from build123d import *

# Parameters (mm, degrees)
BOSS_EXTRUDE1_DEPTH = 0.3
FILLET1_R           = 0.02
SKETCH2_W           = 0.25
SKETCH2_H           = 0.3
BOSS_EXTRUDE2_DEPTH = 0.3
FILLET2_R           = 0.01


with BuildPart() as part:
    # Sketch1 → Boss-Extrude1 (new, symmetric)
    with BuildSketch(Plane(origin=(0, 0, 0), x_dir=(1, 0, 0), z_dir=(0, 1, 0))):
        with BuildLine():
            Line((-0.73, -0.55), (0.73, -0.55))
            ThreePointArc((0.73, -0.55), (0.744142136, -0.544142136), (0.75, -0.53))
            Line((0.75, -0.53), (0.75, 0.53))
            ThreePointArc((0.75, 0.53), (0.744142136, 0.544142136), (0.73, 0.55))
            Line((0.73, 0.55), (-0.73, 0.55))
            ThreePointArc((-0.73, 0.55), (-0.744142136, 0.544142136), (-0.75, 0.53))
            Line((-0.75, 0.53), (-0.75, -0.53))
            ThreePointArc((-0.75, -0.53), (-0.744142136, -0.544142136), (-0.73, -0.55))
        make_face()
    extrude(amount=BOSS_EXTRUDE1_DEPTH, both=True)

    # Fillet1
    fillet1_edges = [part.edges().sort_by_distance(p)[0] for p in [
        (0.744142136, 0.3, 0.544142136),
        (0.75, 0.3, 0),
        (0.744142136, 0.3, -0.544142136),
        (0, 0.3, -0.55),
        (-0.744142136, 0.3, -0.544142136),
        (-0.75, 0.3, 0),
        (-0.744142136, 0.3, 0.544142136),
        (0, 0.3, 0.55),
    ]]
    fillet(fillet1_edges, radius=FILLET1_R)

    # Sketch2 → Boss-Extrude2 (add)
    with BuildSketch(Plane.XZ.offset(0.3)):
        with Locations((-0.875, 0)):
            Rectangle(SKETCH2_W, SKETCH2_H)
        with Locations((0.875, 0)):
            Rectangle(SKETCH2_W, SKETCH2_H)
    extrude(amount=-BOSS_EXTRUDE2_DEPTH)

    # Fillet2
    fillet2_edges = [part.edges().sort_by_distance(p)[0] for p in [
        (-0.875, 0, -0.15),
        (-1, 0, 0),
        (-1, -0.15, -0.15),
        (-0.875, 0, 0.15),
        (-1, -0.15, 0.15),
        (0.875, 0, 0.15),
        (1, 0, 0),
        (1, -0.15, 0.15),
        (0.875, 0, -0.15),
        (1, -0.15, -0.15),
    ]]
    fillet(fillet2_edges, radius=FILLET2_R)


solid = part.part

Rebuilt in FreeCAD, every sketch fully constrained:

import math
import FreeCAD as App
import Part
import Sketcher

V = App.Vector
Q = App.Units.Quantity


def edges_at(feature, points):
    """Names of the edges that pass closest to the given points."""
    edges = feature.Shape.Edges
    near = lambda p: min(range(len(edges)), key=lambda i: edges[i].distToShape(Part.Vertex(*p))[0])
    return sorted({f"Edge{near(p) + 1}" for p in points})


def add_polygon(sketch, points):
    """Adds a closed chain of lines whose ends are joined by coincident constraints."""
    first, n = sketch.GeometryCount, len(points)
    for a, b in zip(points, points[1:] + points[:1]):
        sketch.addGeometry(Part.LineSegment(App.Vector(*a, 0), App.Vector(*b, 0)), False)
    for i in range(n):
        sketch.addConstraint(Sketcher.Constraint("Coincident", first + i, 2, first + (i + 1) % n, 1))

doc = App.newDocument("Part")
params = doc.addObject("Spreadsheet::Sheet", "Params")
for row, (alias, value) in enumerate([
    ("sketch1_radius", "0.02 mm"),
    ("sketch1_width", "1.46 mm"),
    ("sketch1_height", "1.06 mm"),
    ("pad1_length", "0.6 mm"),
    ("fillet_radius", "0.02 mm"),
    ("sketch2_height", "0.3 mm"),
    ("sketch2_width", "0.25 mm"),
    ("pad2_length", "0.3 mm"),
    ("fillet2_radius", "0.01 mm"),
], start=1):
    params.set(f"A{row}", alias)
    params.set(f"B{row}", "=" + value)
    params.setAlias(f"B{row}", alias)

body = doc.addObject("PartDesign::Body", "Body")

# Sketch on XZ plane
sketch1 = body.newObject("Sketcher::SketchObject", "Sketch")
sketch1.AttachmentSupport = (doc.getObject("XZ_Plane"), [""])
sketch1.MapMode = "FlatFace"
sketch1.addGeometry(Part.LineSegment(V(-0.73, 0.55, 0), V(0.73, 0.55, 0)), False)
sketch1.addGeometry(Part.ArcOfCircle(Part.Circle(V(0.73, 0.53, 0), V(0, 0, 1), 0.02), math.radians(0), math.radians(90)), False)
sketch1.addGeometry(Part.LineSegment(V(0.75, 0.53, 0), V(0.75, -0.53, 0)), False)
sketch1.addGeometry(Part.ArcOfCircle(Part.Circle(V(0.73, -0.53, 0), V(0, 0, 1), 0.02), math.radians(-90), math.radians(0)), False)
sketch1.addGeometry(Part.LineSegment(V(0.73, -0.55, 0), V(-0.73, -0.55, 0)), False)
sketch1.addGeometry(Part.ArcOfCircle(Part.Circle(V(-0.73, -0.53, 0), V(0, 0, 1), 0.02), math.radians(180), math.radians(270)), False)
sketch1.addGeometry(Part.LineSegment(V(-0.75, -0.53, 0), V(-0.75, 0.53, 0)), False)
sketch1.addGeometry(Part.ArcOfCircle(Part.Circle(V(-0.73, 0.53, 0), V(0, 0, 1), 0.02), math.radians(90), math.radians(180)), False)
sketch1.addConstraint(Sketcher.Constraint("Tangent", 0, 2, 1, 2))
sketch1.addConstraint(Sketcher.Constraint("Tangent", 1, 1, 2, 1))
sketch1.addConstraint(Sketcher.Constraint("Tangent", 2, 2, 3, 2))
sketch1.addConstraint(Sketcher.Constraint("Tangent", 3, 1, 4, 1))
sketch1.addConstraint(Sketcher.Constraint("Tangent", 4, 2, 5, 2))
sketch1.addConstraint(Sketcher.Constraint("Tangent", 5, 1, 6, 1))
sketch1.addConstraint(Sketcher.Constraint("Tangent", 6, 2, 7, 2))
sketch1.addConstraint(Sketcher.Constraint("Tangent", 7, 1, 0, 1))
sketch1.addConstraint(Sketcher.Constraint("Horizontal", 0))
sketch1.addConstraint(Sketcher.Constraint("Vertical", 2))
sketch1.addConstraint(Sketcher.Constraint("Horizontal", 4))
sketch1.addConstraint(Sketcher.Constraint("Vertical", 6))
sketch1.addConstraint(Sketcher.Constraint("Equal", 1, 3))
sketch1.addConstraint(Sketcher.Constraint("Equal", 3, 5))
sketch1.addConstraint(Sketcher.Constraint("Equal", 5, 7))
sketch1.addConstraint(Sketcher.Constraint("Symmetric", 1, 3, 5, 3, -1, 1))
sketch1.addConstraint(Sketcher.Constraint("Radius", 1, Q("0.02 mm")))
sketch1.addConstraint(Sketcher.Constraint("DistanceX", 0, 1, 0, 2, Q("1.46 mm")))
sketch1.addConstraint(Sketcher.Constraint("DistanceY", 2, 2, 2, 1, Q("1.06 mm")))
sketch1.setExpression("Constraints[16]", "Params.sketch1_radius")
sketch1.setExpression("Constraints[17]", "Params.sketch1_width")
sketch1.setExpression("Constraints[18]", "Params.sketch1_height")
pad1 = body.newObject("PartDesign::Pad", "Pad")
pad1.Profile = sketch1
pad1.setExpression("Length", "Params.pad1_length")
pad1.Midplane = True
doc.recompute()

fillet = body.newObject("PartDesign::Fillet", "Fillet")
fillet.Base = (pad1, edges_at(pad1, [
    (0.744, 0.3, 0.544),
    (0.75, 0.3, 0),
    (0.744, 0.3, -0.544),
    (0, 0.3, -0.55),
    (-0.744, 0.3, -0.544),
    (-0.75, 0.3, 0),
    (-0.744, 0.3, 0.544),
    (0, 0.3, 0.55),
]))
fillet.setExpression("Radius", "Params.fillet_radius")

# Sketch on XZ plane
sketch2 = body.newObject("Sketcher::SketchObject", "Sketch001")
sketch2.AttachmentSupport = (doc.getObject("XZ_Plane"), [""])
sketch2.MapMode = "FlatFace"
sketch2.AttachmentOffset = App.Placement(V(0, 0, 0.3), App.Rotation())
add_polygon(sketch2, [(-1, 0.15), (-1, -0.15), (-0.75, -0.15), (-0.75, 0.15)])  # lines 0-3
add_polygon(sketch2, [(0.75, 0.15), (0.75, -0.15), (1, -0.15), (1, 0.15)])  # lines 4-7
sketch2.addConstraint(Sketcher.Constraint("Vertical", 0))
sketch2.addConstraint(Sketcher.Constraint("Horizontal", 1))
sketch2.addConstraint(Sketcher.Constraint("Vertical", 2))
sketch2.addConstraint(Sketcher.Constraint("Horizontal", 3))
sketch2.addConstraint(Sketcher.Constraint("Vertical", 4))
sketch2.addConstraint(Sketcher.Constraint("Horizontal", 5))
sketch2.addConstraint(Sketcher.Constraint("Vertical", 6))
sketch2.addConstraint(Sketcher.Constraint("Horizontal", 7))
sketch2.addConstraint(Sketcher.Constraint("Symmetric", 2, 2, 4, 2, -1, 1))
sketch2.addConstraint(Sketcher.Constraint("Symmetric", 0, 2, 6, 2, -1, 1))
sketch2.addConstraint(Sketcher.Constraint("Horizontal", 1, 2, 4, 2))
sketch2.addConstraint(Sketcher.Constraint("DistanceY", 0, 2, 0, 1, Q("0.3 mm")))
sketch2.addConstraint(Sketcher.Constraint("DistanceX", 0, 2, -1, 1, Q("1 mm")))
sketch2.addConstraint(Sketcher.Constraint("DistanceX", 1, 1, 1, 2, Q("0.25 mm")))
sketch2.setExpression("Constraints[19]", "Params.sketch2_height")
sketch2.setExpression("Constraints[21]", "Params.sketch2_width")
pad2 = body.newObject("PartDesign::Pad", "Pad001")
pad2.Profile = sketch2
pad2.setExpression("Length", "Params.pad2_length")
pad2.Reversed = True
doc.recompute()

fillet2 = body.newObject("PartDesign::Fillet", "Fillet001")
fillet2.Base = (pad2, edges_at(pad2, [
    (-0.875, 0, -0.15),
    (-1, 0, 0),
    (-1, -0.15, -0.15),
    (-0.875, 0, 0.15),
    (-1, -0.15, 0.15),
    (0.875, 0, 0.15),
    (1, 0, 0),
    (1, -0.15, 0.15),
    (0.875, 0, -0.15),
    (1, -0.15, -0.15),
]))
fillet2.setExpression("Radius", "Params.fillet2_radius")

doc.recompute()
